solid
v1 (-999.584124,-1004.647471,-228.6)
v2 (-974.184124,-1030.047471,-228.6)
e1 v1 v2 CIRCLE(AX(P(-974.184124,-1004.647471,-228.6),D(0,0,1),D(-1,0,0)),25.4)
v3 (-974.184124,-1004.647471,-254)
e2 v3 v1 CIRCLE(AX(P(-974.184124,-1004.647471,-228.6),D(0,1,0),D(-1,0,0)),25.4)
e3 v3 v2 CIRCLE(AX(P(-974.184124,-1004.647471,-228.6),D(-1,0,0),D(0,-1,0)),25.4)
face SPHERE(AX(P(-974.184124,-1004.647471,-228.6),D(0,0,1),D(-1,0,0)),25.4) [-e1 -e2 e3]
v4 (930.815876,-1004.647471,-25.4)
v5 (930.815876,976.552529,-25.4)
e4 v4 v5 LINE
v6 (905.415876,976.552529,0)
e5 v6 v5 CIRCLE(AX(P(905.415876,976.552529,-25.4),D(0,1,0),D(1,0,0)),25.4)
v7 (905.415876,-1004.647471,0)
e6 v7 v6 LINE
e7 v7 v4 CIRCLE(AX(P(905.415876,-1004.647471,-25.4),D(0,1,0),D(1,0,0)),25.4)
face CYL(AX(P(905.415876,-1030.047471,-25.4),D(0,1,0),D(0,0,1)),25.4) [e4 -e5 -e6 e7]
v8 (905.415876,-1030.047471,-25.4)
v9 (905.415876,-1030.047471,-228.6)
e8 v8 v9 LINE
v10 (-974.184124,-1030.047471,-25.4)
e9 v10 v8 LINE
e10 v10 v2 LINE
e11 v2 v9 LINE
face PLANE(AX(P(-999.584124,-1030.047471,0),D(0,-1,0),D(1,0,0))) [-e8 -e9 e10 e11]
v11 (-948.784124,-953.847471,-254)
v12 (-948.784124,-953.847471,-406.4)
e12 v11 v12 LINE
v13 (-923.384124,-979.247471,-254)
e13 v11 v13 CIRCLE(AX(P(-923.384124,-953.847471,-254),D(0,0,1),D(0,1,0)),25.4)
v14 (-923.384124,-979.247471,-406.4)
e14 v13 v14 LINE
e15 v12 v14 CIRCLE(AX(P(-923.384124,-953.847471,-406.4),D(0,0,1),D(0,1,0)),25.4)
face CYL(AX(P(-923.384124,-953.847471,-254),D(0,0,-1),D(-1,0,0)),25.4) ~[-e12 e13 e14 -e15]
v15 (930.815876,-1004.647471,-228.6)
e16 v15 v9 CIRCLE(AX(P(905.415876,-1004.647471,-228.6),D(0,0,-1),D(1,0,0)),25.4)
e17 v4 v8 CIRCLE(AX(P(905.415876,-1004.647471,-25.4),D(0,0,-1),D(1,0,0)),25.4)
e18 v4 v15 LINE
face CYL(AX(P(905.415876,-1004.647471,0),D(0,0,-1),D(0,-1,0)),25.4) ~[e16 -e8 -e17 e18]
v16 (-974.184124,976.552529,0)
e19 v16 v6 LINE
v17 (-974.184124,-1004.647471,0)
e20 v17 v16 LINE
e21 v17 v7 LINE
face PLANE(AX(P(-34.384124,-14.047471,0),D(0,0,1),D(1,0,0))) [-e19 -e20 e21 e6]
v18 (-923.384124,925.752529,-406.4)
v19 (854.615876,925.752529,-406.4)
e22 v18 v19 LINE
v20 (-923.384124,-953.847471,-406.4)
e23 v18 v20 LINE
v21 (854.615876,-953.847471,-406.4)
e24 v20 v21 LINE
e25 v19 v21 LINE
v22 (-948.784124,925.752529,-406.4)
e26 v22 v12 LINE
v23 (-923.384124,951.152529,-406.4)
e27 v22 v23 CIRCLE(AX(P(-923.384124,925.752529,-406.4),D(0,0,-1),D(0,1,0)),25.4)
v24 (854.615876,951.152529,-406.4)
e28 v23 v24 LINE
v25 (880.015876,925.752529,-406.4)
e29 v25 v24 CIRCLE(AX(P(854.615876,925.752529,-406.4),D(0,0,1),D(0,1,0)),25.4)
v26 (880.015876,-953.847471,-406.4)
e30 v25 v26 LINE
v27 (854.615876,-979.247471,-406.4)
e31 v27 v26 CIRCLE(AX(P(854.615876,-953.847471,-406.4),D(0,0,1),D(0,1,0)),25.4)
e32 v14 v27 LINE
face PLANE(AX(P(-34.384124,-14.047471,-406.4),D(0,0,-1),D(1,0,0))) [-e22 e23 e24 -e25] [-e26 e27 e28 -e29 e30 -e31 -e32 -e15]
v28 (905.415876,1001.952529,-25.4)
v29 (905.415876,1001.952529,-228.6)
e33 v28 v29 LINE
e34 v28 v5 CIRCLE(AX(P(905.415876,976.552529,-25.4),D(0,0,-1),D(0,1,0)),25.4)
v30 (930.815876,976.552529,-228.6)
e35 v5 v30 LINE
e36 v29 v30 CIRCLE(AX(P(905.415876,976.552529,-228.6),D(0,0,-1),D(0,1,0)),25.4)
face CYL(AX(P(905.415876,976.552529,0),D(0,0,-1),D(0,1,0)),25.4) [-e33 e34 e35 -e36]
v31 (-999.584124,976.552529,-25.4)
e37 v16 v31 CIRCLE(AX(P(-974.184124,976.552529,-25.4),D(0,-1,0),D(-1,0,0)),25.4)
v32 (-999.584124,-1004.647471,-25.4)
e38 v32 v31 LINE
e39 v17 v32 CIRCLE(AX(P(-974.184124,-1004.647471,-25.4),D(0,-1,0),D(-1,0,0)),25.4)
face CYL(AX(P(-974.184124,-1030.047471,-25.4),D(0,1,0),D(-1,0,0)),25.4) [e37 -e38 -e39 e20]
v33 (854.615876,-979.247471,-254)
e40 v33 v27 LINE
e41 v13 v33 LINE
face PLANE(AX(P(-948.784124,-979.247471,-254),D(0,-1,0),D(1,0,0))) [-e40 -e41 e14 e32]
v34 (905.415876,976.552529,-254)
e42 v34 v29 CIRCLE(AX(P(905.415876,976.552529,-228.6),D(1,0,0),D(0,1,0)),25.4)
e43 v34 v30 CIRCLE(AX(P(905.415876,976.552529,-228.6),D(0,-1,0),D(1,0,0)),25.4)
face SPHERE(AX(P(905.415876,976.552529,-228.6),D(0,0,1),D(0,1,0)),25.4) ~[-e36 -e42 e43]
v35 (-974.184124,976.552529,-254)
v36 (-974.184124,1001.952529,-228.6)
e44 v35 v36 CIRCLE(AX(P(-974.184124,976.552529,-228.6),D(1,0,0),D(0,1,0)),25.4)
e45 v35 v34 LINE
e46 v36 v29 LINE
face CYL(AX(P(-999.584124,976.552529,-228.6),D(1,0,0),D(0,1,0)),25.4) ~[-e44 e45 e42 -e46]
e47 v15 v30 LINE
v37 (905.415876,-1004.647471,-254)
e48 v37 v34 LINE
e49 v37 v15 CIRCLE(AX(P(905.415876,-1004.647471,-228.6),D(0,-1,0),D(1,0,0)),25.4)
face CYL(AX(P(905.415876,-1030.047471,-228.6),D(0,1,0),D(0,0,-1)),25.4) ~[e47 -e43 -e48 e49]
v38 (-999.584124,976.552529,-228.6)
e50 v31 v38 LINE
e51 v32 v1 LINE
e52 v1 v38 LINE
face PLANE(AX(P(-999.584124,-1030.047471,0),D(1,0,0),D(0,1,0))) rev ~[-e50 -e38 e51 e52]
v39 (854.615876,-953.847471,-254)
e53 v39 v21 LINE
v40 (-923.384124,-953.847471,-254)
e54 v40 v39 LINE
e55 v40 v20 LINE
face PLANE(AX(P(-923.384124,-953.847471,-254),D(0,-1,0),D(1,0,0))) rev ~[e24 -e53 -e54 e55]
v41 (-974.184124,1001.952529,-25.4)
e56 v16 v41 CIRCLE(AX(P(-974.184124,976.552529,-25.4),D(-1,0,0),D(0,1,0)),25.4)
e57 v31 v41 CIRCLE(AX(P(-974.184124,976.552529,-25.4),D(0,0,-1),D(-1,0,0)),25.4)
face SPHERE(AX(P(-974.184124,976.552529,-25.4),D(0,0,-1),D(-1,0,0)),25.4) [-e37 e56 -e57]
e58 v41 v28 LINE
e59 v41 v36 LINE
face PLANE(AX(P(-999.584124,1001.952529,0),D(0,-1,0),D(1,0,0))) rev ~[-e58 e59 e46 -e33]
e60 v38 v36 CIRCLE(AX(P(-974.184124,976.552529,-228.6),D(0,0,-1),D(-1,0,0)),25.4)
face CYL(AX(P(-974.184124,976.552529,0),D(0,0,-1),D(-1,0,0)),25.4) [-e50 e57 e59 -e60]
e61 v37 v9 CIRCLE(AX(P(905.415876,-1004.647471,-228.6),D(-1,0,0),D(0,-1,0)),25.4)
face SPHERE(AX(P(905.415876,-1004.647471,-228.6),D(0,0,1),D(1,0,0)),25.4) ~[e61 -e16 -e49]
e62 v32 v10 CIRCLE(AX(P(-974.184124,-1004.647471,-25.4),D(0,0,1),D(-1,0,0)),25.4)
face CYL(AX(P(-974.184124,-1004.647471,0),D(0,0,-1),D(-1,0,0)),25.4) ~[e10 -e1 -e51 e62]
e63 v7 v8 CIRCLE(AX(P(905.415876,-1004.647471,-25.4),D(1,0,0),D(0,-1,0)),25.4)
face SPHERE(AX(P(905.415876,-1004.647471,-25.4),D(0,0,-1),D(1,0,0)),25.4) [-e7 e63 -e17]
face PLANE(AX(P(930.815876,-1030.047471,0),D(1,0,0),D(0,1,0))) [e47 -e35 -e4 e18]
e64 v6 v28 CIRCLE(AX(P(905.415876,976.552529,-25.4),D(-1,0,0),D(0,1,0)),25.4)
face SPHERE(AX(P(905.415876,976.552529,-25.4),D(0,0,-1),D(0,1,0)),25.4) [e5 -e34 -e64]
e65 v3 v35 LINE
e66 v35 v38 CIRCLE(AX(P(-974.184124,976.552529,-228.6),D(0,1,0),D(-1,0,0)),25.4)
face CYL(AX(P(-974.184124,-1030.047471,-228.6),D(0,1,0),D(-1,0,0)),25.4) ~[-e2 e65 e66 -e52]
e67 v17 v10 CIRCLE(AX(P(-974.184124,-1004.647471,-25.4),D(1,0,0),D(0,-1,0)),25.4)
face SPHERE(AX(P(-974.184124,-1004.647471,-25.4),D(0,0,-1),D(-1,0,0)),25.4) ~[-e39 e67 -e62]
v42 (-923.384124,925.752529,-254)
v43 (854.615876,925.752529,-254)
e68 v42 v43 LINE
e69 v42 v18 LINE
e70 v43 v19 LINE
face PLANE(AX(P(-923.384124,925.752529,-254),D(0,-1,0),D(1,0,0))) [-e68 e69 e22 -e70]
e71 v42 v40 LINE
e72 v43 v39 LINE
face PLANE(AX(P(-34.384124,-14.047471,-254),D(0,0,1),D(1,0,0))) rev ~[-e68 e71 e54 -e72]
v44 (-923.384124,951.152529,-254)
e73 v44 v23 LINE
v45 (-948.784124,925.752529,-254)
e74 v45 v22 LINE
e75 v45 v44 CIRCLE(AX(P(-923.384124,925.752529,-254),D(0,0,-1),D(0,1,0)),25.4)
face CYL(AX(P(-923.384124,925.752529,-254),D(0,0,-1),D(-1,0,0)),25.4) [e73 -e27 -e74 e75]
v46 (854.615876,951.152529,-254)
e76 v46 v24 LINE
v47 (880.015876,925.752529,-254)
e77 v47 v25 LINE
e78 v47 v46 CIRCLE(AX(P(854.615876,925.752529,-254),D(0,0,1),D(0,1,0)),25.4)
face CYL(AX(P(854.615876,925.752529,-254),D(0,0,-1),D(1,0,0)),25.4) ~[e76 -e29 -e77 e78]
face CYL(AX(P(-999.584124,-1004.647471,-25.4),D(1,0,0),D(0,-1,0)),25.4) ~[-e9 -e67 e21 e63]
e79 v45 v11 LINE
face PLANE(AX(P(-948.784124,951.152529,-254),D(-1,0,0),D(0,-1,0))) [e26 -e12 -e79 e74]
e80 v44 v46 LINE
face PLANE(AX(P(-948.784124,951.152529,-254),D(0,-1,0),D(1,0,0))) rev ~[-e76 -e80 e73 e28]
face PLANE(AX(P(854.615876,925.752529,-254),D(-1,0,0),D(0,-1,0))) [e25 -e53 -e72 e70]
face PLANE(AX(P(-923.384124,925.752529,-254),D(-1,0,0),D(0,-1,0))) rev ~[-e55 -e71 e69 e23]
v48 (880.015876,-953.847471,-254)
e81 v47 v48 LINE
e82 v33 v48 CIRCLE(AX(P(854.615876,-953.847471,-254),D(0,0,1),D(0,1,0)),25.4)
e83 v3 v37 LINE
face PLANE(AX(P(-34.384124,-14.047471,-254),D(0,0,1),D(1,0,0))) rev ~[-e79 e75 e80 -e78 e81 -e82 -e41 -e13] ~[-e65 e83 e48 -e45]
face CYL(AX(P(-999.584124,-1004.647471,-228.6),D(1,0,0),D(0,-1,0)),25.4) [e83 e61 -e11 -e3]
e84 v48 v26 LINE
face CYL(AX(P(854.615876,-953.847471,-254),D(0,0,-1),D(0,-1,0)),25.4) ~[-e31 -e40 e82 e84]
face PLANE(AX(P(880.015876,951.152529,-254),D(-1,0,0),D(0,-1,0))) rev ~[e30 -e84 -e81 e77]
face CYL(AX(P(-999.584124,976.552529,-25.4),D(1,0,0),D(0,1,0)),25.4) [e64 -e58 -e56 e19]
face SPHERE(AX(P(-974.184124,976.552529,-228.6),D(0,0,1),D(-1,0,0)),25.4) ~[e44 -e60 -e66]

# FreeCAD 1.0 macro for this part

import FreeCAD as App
import Part
import Sketcher
Q = App.Units.Quantity


def edges_at(feature, points):
    """Names of the edges that pass closest to the given points."""
    edges = feature.Shape.Edges
    near = lambda p: min(range(len(edges)), key=lambda i: edges[i].distToShape(Part.Vertex(*p))[0])
    return sorted({f"Edge{near(p) + 1}" for p in points})


def add_polygon(sketch, points):
    """Adds a closed chain of lines whose ends are joined by coincident constraints."""
    first, n = sketch.GeometryCount, len(points)
    for a, b in zip(points, points[1:] + points[:1]):
        sketch.addGeometry(Part.LineSegment(App.Vector(*a, 0), App.Vector(*b, 0)), False)
    for i in range(n):
        sketch.addConstraint(Sketcher.Constraint("Coincident", first + i, 2, first + (i + 1) % n, 1))

doc = App.newDocument("Part")
body = doc.addObject("PartDesign::Body", "Body")

sketch1 = body.newObject("Sketcher::SketchObject", "Sketch")
sketch1.AttachmentSupport = (doc.getObject("XY_Plane"), [""])
sketch1.MapMode = "FlatFace"
add_polygon(sketch1, [(-1000, 1002), (-1000, -1030), (931, -1030), (931, 1002)])
sketch1.addConstraint([
    Sketcher.Constraint("Vertical", 0),
    Sketcher.Constraint("Horizontal", 1),
    Sketcher.Constraint("Vertical", 2),
    Sketcher.Constraint("Horizontal", 3),
    Sketcher.Constraint("DistanceX", 1, 1, 1, 2, Q("76 in")),
    Sketcher.Constraint("DistanceY", 0, 2, 0, 1, Q("80 in")),
    Sketcher.Constraint("DistanceY", 0, 2, -1, 1, 1030.047471),
    Sketcher.Constraint("DistanceX", 0, 2, -1, 1, 999.584124),
])
pad1 = body.newObject("PartDesign::Pad", "Pad")
pad1.Profile = sketch1
pad1.Length = Q("10 in")
pad1.Reversed = True

sketch2 = body.newObject("Sketcher::SketchObject", "Sketch001")
sketch2.AttachmentSupport = (doc.getObject("XY_Plane"), [""])
sketch2.MapMode = "FlatFace"
sketch2.AttachmentOffset = App.Placement(App.Vector(0, 0, -10 * 25.4), App.Rotation())
add_polygon(sketch2, [(-949, -979), (-949, 951), (880, 951), (880, -979)])
add_polygon(sketch2, [(855, 926), (-923, 926), (-923, -954), (855, -954)])
sketch2.addConstraint([
    Sketcher.Constraint("Vertical", 0),
    Sketcher.Constraint("Horizontal", 1),
    Sketcher.Constraint("Vertical", 2),
    Sketcher.Constraint("Horizontal", 3),
    Sketcher.Constraint("Horizontal", 4),
    Sketcher.Constraint("Vertical", 5),
    Sketcher.Constraint("Horizontal", 6),
    Sketcher.Constraint("Vertical", 7),
    Sketcher.Constraint("DistanceX", 1, 1, 1, 2, Q("72 in")),
    Sketcher.Constraint("DistanceX", 4, 2, 4, 1, Q("70 in")),
    Sketcher.Constraint("DistanceY", 0, 1, 0, 2, Q("76 in")),
    Sketcher.Constraint("DistanceY", 5, 2, 5, 1, Q("74 in")),
    Sketcher.Constraint("DistanceX", 0, 2, 4, 2, Q("1 in")),
    Sketcher.Constraint("DistanceY", 4, 2, 0, 2, Q("1 in")),
    Sketcher.Constraint("DistanceY", -1, 1, 0, 2, 951.152529),
    Sketcher.Constraint("DistanceX", 0, 2, -1, 1, 948.784124),
])
pad2 = body.newObject("PartDesign::Pad", "Pad001")
pad2.Profile = sketch2
pad2.Length = Q("6 in")
pad2.Reversed = True
doc.recompute()

fillet = body.newObject("PartDesign::Fillet", "Fillet")
fillet.Base = (pad2, edges_at(pad2, [
    (-999.584, 1001.953, -127),
    (-999.584, -1030.047, -127),
    (-999.584, -14.047, 0),
    (-999.584, -14.047, -254),
    (930.816, 1001.953, -127),
    (-34.384, 1001.953, 0),
    (-34.384, 1001.953, -254),
    (930.816, -1030.047, -127),
    (930.816, -14.047, 0),
    (930.816, -14.047, -254),
    (-34.384, -1030.047, 0),
    (-34.384, -1030.047, -254),
    (880.016, -979.247, -330.2),
    (880.016, 951.153, -330.2),
    (-948.784, 951.153, -330.2),
    (-948.784, -979.247, -330.2),
]))
fillet.Radius = Q("1 in")

doc.recompute()
